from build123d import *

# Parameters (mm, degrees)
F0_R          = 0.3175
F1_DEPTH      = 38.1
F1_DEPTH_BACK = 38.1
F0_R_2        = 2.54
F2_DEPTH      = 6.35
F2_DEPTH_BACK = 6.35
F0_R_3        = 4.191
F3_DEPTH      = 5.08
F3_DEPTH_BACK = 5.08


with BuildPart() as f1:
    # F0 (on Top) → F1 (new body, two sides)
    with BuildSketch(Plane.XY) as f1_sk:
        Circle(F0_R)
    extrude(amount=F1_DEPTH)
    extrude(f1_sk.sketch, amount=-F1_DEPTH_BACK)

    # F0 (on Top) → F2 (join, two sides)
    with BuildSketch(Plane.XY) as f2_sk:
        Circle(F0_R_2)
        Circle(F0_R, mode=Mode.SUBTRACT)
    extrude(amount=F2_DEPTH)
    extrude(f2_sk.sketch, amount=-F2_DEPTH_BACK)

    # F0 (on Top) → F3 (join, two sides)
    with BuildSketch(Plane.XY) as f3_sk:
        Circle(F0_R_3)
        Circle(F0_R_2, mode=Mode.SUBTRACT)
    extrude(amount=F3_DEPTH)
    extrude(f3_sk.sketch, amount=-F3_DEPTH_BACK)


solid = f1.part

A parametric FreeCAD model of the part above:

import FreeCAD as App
import Part
import Sketcher
from FreeCAD import Vector
Q = App.Units.Quantity

doc = App.newDocument("Part")
body = doc.addObject("PartDesign::Body", "Body")

# Sketch on XY plane
sketch1 = body.newObject("Sketcher::SketchObject", "Sketch")
sketch1.AttachmentSupport = (doc.getObject("XY_Plane"), [""])
sketch1.MapMode = "FlatFace"
sketch1.addGeometry(Part.Circle(Vector(0, 0, 0), Vector(0, 0, 1), 0.32), False)
sketch1.addConstraint([
    Sketcher.Constraint("Coincident", 0, 3, -1, 1),
    Sketcher.Constraint("Diameter", 0, Q("0.025 in")),
])
pad1 = body.newObject("PartDesign::Pad", "Pad")
pad1.Profile = sketch1
pad1.Type = "TwoLengths"
pad1.Length = Q("1.5 in")
pad1.Length2 = Q("1.5 in")

# Sketch on XY plane
sketch2 = body.newObject("Sketcher::SketchObject", "Sketch001")
sketch2.AttachmentSupport = (doc.getObject("XY_Plane"), [""])
sketch2.MapMode = "FlatFace"
sketch2.addGeometry([
    Part.Circle(Vector(0, 0, 0), Vector(0, 0, 1), 2.54),
    Part.Circle(Vector(0, 0, 0), Vector(0, 0, 1), 0.32),
], False)
sketch2.addConstraint([
    Sketcher.Constraint("Coincident", 0, 3, -1, 1),
    Sketcher.Constraint("Coincident", 1, 3, -1, 1),
    Sketcher.Constraint("Diameter", 0, Q("0.2 in")),
    Sketcher.Constraint("Diameter", 1, Q("0.025 in")),
])
pad2 = body.newObject("PartDesign::Pad", "Pad001")
pad2.Profile = sketch2
pad2.Type = "TwoLengths"
pad2.Length = Q("0.25 in")
pad2.Length2 = Q("0.25 in")

# Sketch on XY plane
sketch3 = body.newObject("Sketcher::SketchObject", "Sketch002")
sketch3.AttachmentSupport = (doc.getObject("XY_Plane"), [""])
sketch3.MapMode = "FlatFace"
sketch3.addGeometry([
    Part.Circle(Vector(0, 0, 0), Vector(0, 0, 1), 4.2),
    Part.Circle(Vector(0, 0, 0), Vector(0, 0, 1), 2.5),
], False)
sketch3.addConstraint([
    Sketcher.Constraint("Coincident", 0, 3, -1, 1),
    Sketcher.Constraint("Coincident", 1, 3, -1, 1),
    Sketcher.Constraint("Diameter", 1, Q("0.2 in")),
    Sketcher.Constraint("Diameter", 0, Q("0.33 in")),
])
pad3 = body.newObject("PartDesign::Pad", "Pad002")
pad3.Profile = sketch3
pad3.Type = "TwoLengths"
pad3.Length = Q("0.2 in")
pad3.Length2 = Q("0.2 in")

doc.recompute()
